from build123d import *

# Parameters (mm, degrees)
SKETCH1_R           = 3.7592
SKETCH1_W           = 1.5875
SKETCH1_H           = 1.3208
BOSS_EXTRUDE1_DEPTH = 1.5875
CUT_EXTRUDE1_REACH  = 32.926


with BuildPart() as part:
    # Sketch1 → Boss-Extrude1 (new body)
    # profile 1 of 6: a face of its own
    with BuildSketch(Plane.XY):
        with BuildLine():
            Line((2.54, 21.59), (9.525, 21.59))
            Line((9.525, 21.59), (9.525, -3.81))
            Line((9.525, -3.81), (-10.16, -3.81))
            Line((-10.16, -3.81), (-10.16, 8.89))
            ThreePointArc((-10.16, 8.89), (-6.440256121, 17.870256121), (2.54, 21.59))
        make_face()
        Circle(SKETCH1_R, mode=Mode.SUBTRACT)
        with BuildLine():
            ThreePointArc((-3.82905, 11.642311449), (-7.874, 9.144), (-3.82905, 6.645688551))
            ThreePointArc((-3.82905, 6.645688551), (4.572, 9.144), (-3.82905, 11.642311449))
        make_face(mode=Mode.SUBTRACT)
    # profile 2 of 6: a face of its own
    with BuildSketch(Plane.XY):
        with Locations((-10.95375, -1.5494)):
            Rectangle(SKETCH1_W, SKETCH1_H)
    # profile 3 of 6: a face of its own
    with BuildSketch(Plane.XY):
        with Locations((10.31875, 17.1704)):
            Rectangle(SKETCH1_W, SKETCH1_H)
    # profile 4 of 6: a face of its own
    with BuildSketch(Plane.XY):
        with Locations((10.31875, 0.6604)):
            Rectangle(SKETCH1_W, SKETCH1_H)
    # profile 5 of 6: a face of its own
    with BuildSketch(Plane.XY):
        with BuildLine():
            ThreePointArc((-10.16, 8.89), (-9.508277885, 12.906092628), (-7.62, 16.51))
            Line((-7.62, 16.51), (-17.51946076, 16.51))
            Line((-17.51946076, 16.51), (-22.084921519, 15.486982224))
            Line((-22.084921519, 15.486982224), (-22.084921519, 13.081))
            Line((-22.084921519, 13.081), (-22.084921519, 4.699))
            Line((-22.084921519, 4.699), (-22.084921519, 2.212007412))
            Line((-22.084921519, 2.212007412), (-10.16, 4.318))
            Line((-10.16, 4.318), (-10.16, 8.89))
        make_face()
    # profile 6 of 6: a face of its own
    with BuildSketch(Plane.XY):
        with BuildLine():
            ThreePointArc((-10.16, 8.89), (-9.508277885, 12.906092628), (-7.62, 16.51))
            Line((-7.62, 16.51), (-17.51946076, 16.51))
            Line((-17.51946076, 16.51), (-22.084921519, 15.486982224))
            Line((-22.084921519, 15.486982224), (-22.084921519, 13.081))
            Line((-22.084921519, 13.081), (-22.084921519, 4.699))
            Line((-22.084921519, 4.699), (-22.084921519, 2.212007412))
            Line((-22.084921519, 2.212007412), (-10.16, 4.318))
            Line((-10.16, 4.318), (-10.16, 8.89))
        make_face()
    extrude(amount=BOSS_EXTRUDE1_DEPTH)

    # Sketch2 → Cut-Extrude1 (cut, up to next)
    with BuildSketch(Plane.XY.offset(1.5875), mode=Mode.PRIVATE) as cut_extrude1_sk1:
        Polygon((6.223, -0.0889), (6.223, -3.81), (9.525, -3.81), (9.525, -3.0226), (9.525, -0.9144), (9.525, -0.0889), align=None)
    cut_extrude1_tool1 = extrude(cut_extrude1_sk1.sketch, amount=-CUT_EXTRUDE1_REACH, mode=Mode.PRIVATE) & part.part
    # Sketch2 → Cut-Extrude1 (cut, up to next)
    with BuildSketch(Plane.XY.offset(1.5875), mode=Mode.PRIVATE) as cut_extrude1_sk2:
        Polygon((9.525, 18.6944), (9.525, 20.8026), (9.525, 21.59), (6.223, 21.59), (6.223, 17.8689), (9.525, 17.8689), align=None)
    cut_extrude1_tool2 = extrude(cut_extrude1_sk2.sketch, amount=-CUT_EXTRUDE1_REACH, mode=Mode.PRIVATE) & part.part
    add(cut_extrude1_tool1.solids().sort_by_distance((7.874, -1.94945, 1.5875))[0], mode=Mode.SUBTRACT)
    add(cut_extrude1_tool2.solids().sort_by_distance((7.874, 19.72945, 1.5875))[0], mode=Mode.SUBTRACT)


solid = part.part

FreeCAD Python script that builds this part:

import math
import FreeCAD as App
import Part
import Sketcher

V = App.Vector
Q = App.Units.Quantity

doc = App.newDocument("Part")
body = doc.addObject("PartDesign::Body", "Body")

# Sketch on XY plane
sketch1 = body.newObject("Sketcher::SketchObject", "Sketch")
sketch1.AttachmentSupport = (doc.getObject("XY_Plane"), [""])
sketch1.MapMode = "FlatFace"
sketch1.addGeometry(Part.LineSegment(V(9.5, 21.6, 0), V(2.5, 21.6, 0)), False)
sketch1.addGeometry(Part.ArcOfCircle(Part.Circle(V(2.5, 8.9, 0), V(0, 0, 1), 12.7), math.radians(90), math.radians(143)), False)
sketch1.addGeometry(Part.LineSegment(V(-7.6, 16.5, 0), V(-17.5, 16.5, 0)), False)
sketch1.addGeometry(Part.LineSegment(V(-17.5, 16.5, 0), V(-22.1, 15.5, 0)), False)
sketch1.addGeometry(Part.LineSegment(V(-22.1, 15.5, 0), V(-22.1, 2.2, 0)), False)
sketch1.addGeometry(Part.LineSegment(V(-22.1, 2.2, 0), V(-10.2, 4.3, 0)), False)
sketch1.addGeometry(Part.LineSegment(V(-10.2, 4.3, 0), V(-10.2, -0.9, 0)), False)
sketch1.addGeometry(Part.LineSegment(V(-10.2, -0.9, 0), V(-11.7, -0.9, 0)), False)
sketch1.addGeometry(Part.LineSegment(V(-11.7, -0.9, 0), V(-11.7, -2.2, 0)), False)
sketch1.addGeometry(Part.LineSegment(V(-11.7, -2.2, 0), V(-10.2, -2.2, 0)), False)
sketch1.addGeometry(Part.LineSegment(V(-10.2, -2.2, 0), V(-10.2, -3.8, 0)), False)
sketch1.addGeometry(Part.LineSegment(V(-10.2, -3.8, 0), V(9.5, -3.8, 0)), False)
sketch1.addGeometry(Part.LineSegment(V(9.5, -3.8, 0), V(9.5, 0, 0)), False)
sketch1.addGeometry(Part.LineSegment(V(9.5, 0, 0), V(11.1, 0, 0)), False)
sketch1.addGeometry(Part.LineSegment(V(11.1, 0, 0), V(11.1, 1.3, 0)), False)
sketch1.addGeometry(Part.LineSegment(V(11.1, 1.3, 0), V(9.5, 1.3, 0)), False)
sketch1.addGeometry(Part.LineSegment(V(9.5, 1.3, 0), V(9.5, 16.5, 0)), False)
sketch1.addGeometry(Part.LineSegment(V(9.5, 16.5, 0), V(11.1, 16.5, 0)), False)
sketch1.addGeometry(Part.LineSegment(V(11.1, 16.5, 0), V(11.1, 17.8, 0)), False)
sketch1.addGeometry(Part.LineSegment(V(11.1, 17.8, 0), V(9.5, 17.8, 0)), False)
sketch1.addGeometry(Part.LineSegment(V(9.5, 17.8, 0), V(9.5, 21.6, 0)), False)
sketch1.addGeometry(Part.Circle(V(0, 0, 0), V(0, 0, 1), 3.8), False)
sketch1.addGeometry(Part.ArcOfCircle(Part.Circle(V(0, 9.1, 0), V(0, 0, 1), 4.6), math.radians(-147), math.radians(147)), False)
sketch1.addGeometry(Part.ArcOfCircle(Part.Circle(V(-5.1, 9.1, 0), V(0, 0, 1), 2.8), math.radians(63), math.radians(297)), False)
sketch1.addConstraint(Sketcher.Constraint("Tangent", 0, 2, 1, 1))
sketch1.addConstraint(Sketcher.Constraint("Coincident", 1, 2, 2, 1))
sketch1.addConstraint(Sketcher.Constraint("Coincident", 2, 2, 3, 1))
sketch1.addConstraint(Sketcher.Constraint("Coincident", 3, 2, 4, 1))
sketch1.addConstraint(Sketcher.Constraint("Coincident", 4, 2, 5, 1))
sketch1.addConstraint(Sketcher.Constraint("Coincident", 5, 2, 6, 1))
sketch1.addConstraint(Sketcher.Constraint("Coincident", 6, 2, 7, 1))
sketch1.addConstraint(Sketcher.Constraint("Coincident", 7, 2, 8, 1))
sketch1.addConstraint(Sketcher.Constraint("Coincident", 8, 2, 9, 1))
sketch1.addConstraint(Sketcher.Constraint("Coincident", 9, 2, 10, 1))
sketch1.addConstraint(Sketcher.Constraint("Coincident", 10, 2, 11, 1))
sketch1.addConstraint(Sketcher.Constraint("Coincident", 11, 2, 12, 1))
sketch1.addConstraint(Sketcher.Constraint("Coincident", 12, 2, 13, 1))
sketch1.addConstraint(Sketcher.Constraint("Coincident", 13, 2, 14, 1))
sketch1.addConstraint(Sketcher.Constraint("Coincident", 14, 2, 15, 1))
sketch1.addConstraint(Sketcher.Constraint("Coincident", 15, 2, 16, 1))
sketch1.addConstraint(Sketcher.Constraint("Coincident", 16, 2, 17, 1))
sketch1.addConstraint(Sketcher.Constraint("Coincident", 17, 2, 18, 1))
sketch1.addConstraint(Sketcher.Constraint("Coincident", 18, 2, 19, 1))
sketch1.addConstraint(Sketcher.Constraint("Coincident", 19, 2, 20, 1))
sketch1.addConstraint(Sketcher.Constraint("Coincident", 20, 2, 0, 1))
sketch1.addConstraint(Sketcher.Constraint("Coincident", 22, 1, 23, 2))
sketch1.addConstraint(Sketcher.Constraint("Coincident", 23, 1, 22, 2))
sketch1.addConstraint(Sketcher.Constraint("Horizontal", 0))
sketch1.addConstraint(Sketcher.Constraint("Horizontal", 2))
sketch1.addConstraint(Sketcher.Constraint("Vertical", 4))
sketch1.addConstraint(Sketcher.Constraint("Vertical", 6))
sketch1.addConstraint(Sketcher.Constraint("Horizontal", 7))
sketch1.addConstraint(Sketcher.Constraint("Vertical", 8))
sketch1.addConstraint(Sketcher.Constraint("Horizontal", 9))
sketch1.addConstraint(Sketcher.Constraint("Vertical", 10))
sketch1.addConstraint(Sketcher.Constraint("Horizontal", 11))
sketch1.addConstraint(Sketcher.Constraint("Vertical", 12))
sketch1.addConstraint(Sketcher.Constraint("Horizontal", 13))
sketch1.addConstraint(Sketcher.Constraint("Vertical", 14))
sketch1.addConstraint(Sketcher.Constraint("Horizontal", 15))
sketch1.addConstraint(Sketcher.Constraint("Vertical", 16))
sketch1.addConstraint(Sketcher.Constraint("Horizontal", 17))
sketch1.addConstraint(Sketcher.Constraint("Vertical", 18))
sketch1.addConstraint(Sketcher.Constraint("Horizontal", 19))
sketch1.addConstraint(Sketcher.Constraint("Vertical", 20))
sketch1.addConstraint(Sketcher.Constraint("Coincident", 21, 3, -1, 1))
sketch1.addConstraint(Sketcher.Constraint("PointOnObject", 22, 3, -2))
sketch1.addConstraint(Sketcher.Constraint("PointOnObject", 12, 2, -1))
sketch1.addConstraint(Sketcher.Constraint("Horizontal", 22, 3, 23, 3))
sketch1.addConstraint(Sketcher.Constraint("Horizontal", 2, 2, 16, 2))
sketch1.addConstraint(Sketcher.Constraint("Vertical", 6, 2, 9, 2))
sketch1.addConstraint(Sketcher.Constraint("Vertical", 12, 2, 15, 2))
sketch1.addConstraint(Sketcher.Constraint("Vertical", 14, 2, 17, 2))
sketch1.addConstraint(Sketcher.Constraint("Vertical", 16, 2, 19, 2))
sketch1.addConstraint(Sketcher.Constraint("Equal", 9, 13))
sketch1.addConstraint(Sketcher.Constraint("Equal", 8, 14))
sketch1.addConstraint(Sketcher.Constraint("Equal", 14, 18))
sketch1.addConstraint(Sketcher.Constraint("Radius", 1, Q("0.5 in")))
sketch1.addConstraint(Sketcher.Constraint("Radius", 22, Q("0.18 in")))
sketch1.addConstraint(Sketcher.Constraint("Radius", 23, Q("0.11 in")))
sketch1.addConstraint(Sketcher.Constraint("Diameter", 21, Q("0.296 in")))
sketch1.addConstraint(Sketcher.Constraint("DistanceY", 12, 1, 12, 2, Q("0.15 in")))
sketch1.addConstraint(Sketcher.Constraint("DistanceX", -1, 1, 1, 3, Q("0.1 in")))
sketch1.addConstraint(Sketcher.Constraint("DistanceX", 23, 3, -1, 1, Q("0.2 in")))
sketch1.addConstraint(Sketcher.Constraint("DistanceX", 1, 2, -1, 1, Q("0.3 in")))
sketch1.addConstraint(Sketcher.Constraint("DistanceX", 5, 2, -1, 1, Q("0.4 in")))
sketch1.addConstraint(Sketcher.Constraint("DistanceY", 11, 2, 1, 3, Q("0.5 in")))
sketch1.addConstraint(Sketcher.Constraint("DistanceX", 0, 2, 0, 1, Q("0.275 in")))
sketch1.addConstraint(Sketcher.Constraint("DistanceX", 7, 2, 7, 1, Q("0.0625 in")))
sketch1.addConstraint(Sketcher.Constraint("DistanceY", 6, 2, 6, 1, Q("0.205 in")))
sketch1.addConstraint(Sketcher.Constraint("DistanceY", 8, 2, 8, 1, Q("0.052 in")))
sketch1.addConstraint(Sketcher.Constraint("DistanceY", 10, 2, 10, 1, Q("0.063 in")))
sketch1.addConstraint(Sketcher.Constraint("DistanceY", -1, 1, 22, 3, Q("0.36 in")))
sketch1.addConstraint(Sketcher.Constraint("DistanceX", 2, 2, 2, 1, 9.899461))
sketch1.addConstraint(Sketcher.Constraint("DistanceY", 4, 2, 4, 1, 13.274975))
sketch1.addConstraint(Sketcher.Constraint("DistanceX", 3, 2, -1, 1, 22.084922))
sketch1.addConstraint(Sketcher.Constraint("Distance", 3, 4.678675))
pad1 = body.newObject("PartDesign::Pad", "Pad")
pad1.Profile = sketch1
pad1.Length = Q("0.0625 in")

# Sketch on XY plane
sketch2 = body.newObject("Sketcher::SketchObject", "Sketch001")
sketch2.AttachmentSupport = (doc.getObject("XY_Plane"), [""])
sketch2.MapMode = "FlatFace"
sketch2.AttachmentOffset = App.Placement(V(0, 0, 0.0625 * 25.4), App.Rotation())
sketch2.addGeometry(Part.LineSegment(V(6.2, -0.1, 0), V(6.2, -3.8, 0)), False)
sketch2.addGeometry(Part.LineSegment(V(6.2, -3.8, 0), V(9.5, -3.8, 0)), False)
sketch2.addGeometry(Part.LineSegment(V(9.5, -3.8, 0), V(9.5, -0.1, 0)), False)
sketch2.addGeometry(Part.LineSegment(V(9.5, -0.1, 0), V(6.2, -0.1, 0)), False)
sketch2.addConstraint(Sketcher.Constraint("Coincident", 0, 2, 1, 1))
sketch2.addConstraint(Sketcher.Constraint("Coincident", 1, 2, 2, 1))
sketch2.addConstraint(Sketcher.Constraint("Coincident", 2, 2, 3, 1))
sketch2.addConstraint(Sketcher.Constraint("Coincident", 3, 2, 0, 1))
sketch2.addConstraint(Sketcher.Constraint("Vertical", 0))
sketch2.addConstraint(Sketcher.Constraint("Horizontal", 1))
sketch2.addConstraint(Sketcher.Constraint("Vertical", 2))
sketch2.addConstraint(Sketcher.Constraint("Horizontal", 3))
sketch2.addConstraint(Sketcher.Constraint("DistanceX", 1, 1, 1, 2, Q("0.13 in")))
sketch2.addConstraint(Sketcher.Constraint("DistanceY", 0, 2, -1, 1, Q("0.15 in")))
sketch2.addConstraint(Sketcher.Constraint("DistanceY", 0, 2, 0, 1, Q("0.1465 in")))
sketch2.addConstraint(Sketcher.Constraint("DistanceX", -1, 1, 0, 2, Q("0.245 in")))
pocket1 = body.newObject("PartDesign::Pocket", "Pocket")
pocket1.Profile = sketch2
pocket1.Type = "UpToFirst"

# Sketch on XY plane
sketch3 = body.newObject("Sketcher::SketchObject", "Sketch002")
sketch3.AttachmentSupport = (doc.getObject("XY_Plane"), [""])
sketch3.MapMode = "FlatFace"
sketch3.AttachmentOffset = App.Placement(V(0, 0, 0.0625 * 25.4), App.Rotation())
sketch3.addGeometry(Part.LineSegment(V(9.5, 21.6, 0), V(6.2, 21.6, 0)), False)
sketch3.addGeometry(Part.LineSegment(V(6.2, 21.6, 0), V(6.2, 17.9, 0)), False)
sketch3.addGeometry(Part.LineSegment(V(6.2, 17.9, 0), V(9.5, 17.9, 0)), False)
sketch3.addGeometry(Part.LineSegment(V(9.5, 17.9, 0), V(9.5, 21.6, 0)), False)
sketch3.addConstraint(Sketcher.Constraint("Coincident", 0, 2, 1, 1))
sketch3.addConstraint(Sketcher.Constraint("Coincident", 1, 2, 2, 1))
sketch3.addConstraint(Sketcher.Constraint("Coincident", 2, 2, 3, 1))
sketch3.addConstraint(Sketcher.Constraint("Coincident", 3, 2, 0, 1))
sketch3.addConstraint(Sketcher.Constraint("Horizontal", 0))
sketch3.addConstraint(Sketcher.Constraint("Vertical", 1))
sketch3.addConstraint(Sketcher.Constraint("Horizontal", 2))
sketch3.addConstraint(Sketcher.Constraint("Vertical", 3))
sketch3.addConstraint(Sketcher.Constraint("DistanceX", 0, 2, 0, 1, Q("0.13 in")))
sketch3.addConstraint(Sketcher.Constraint("DistanceY", -1, 1, 0, 2, Q("0.85 in")))
sketch3.addConstraint(Sketcher.Constraint("DistanceY", 1, 2, 1, 1, Q("0.1465 in")))
sketch3.addConstraint(Sketcher.Constraint("DistanceX", -1, 1, 0, 2, Q("0.245 in")))
pocket2 = body.newObject("PartDesign::Pocket", "Pocket001")
pocket2.Profile = sketch3
pocket2.Type = "UpToFirst"

doc.recompute()
